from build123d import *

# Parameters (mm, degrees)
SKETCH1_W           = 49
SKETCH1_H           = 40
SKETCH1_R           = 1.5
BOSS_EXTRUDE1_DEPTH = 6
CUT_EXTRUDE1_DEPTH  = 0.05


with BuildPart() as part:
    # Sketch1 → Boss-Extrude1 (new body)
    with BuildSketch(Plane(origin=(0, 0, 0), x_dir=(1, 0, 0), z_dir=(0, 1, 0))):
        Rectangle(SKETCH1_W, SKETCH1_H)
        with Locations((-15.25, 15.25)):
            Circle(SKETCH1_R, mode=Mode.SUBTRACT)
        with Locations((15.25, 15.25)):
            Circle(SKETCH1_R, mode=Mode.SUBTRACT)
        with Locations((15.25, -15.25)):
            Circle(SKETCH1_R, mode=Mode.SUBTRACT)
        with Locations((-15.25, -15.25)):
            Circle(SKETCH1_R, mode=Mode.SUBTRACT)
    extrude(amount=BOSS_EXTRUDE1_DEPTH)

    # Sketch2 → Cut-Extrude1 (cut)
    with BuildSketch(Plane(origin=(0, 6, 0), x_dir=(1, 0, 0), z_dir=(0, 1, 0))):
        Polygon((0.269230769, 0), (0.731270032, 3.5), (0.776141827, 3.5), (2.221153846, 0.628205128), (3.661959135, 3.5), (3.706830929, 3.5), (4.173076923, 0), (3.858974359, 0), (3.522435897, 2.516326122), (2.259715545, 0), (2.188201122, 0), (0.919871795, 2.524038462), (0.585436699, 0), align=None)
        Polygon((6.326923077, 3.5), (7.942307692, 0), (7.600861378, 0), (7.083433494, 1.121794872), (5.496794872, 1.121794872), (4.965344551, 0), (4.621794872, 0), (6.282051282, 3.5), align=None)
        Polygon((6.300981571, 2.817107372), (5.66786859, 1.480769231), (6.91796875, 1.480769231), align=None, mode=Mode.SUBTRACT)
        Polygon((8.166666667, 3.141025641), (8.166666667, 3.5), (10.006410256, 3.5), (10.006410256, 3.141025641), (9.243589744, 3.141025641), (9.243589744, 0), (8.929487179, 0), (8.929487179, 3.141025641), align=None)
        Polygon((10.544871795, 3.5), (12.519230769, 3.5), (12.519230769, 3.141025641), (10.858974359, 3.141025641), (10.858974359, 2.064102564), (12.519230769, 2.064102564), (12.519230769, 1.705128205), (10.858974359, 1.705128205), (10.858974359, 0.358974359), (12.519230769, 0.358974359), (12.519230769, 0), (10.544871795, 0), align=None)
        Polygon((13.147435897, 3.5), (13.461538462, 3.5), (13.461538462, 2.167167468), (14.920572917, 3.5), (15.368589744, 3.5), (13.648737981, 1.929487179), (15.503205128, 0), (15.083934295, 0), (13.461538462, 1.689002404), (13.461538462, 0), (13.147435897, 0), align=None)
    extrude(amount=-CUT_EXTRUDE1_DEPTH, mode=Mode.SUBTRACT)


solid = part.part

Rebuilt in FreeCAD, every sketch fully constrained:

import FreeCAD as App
import Part
import Sketcher
Q = App.Units.Quantity


def add_polygon(sketch, points):
    """Adds a closed chain of lines whose ends are joined by coincident constraints."""
    first, n = sketch.GeometryCount, len(points)
    for a, b in zip(points, points[1:] + points[:1]):
        sketch.addGeometry(Part.LineSegment(App.Vector(*a, 0), App.Vector(*b, 0)), False)
    for i in range(n):
        sketch.addConstraint(Sketcher.Constraint("Coincident", first + i, 2, first + (i + 1) % n, 1))

doc = App.newDocument("Part")
body = doc.addObject("PartDesign::Body", "Body")

# Sketch on XZ plane
sketch1 = doc.addObject("Sketcher::SketchObject", "Sketch")
body.addObject(sketch1)
sketch1.AttachmentSupport = (doc.XZ_Plane, [""])
sketch1.MapMode = "FlatFace"
add_polygon(sketch1, [(-24.5, -20), (-24.5, 20), (24.5, 20), (24.5, -20)])  # lines 0-3
sketch1.addGeometry(Part.Circle(App.Vector(-15.25, 15.25, 0), App.Vector(0, 0, 1), 1.5), False)  # 4
sketch1.addGeometry(Part.Circle(App.Vector(15.25, 15.25, 0), App.Vector(0, 0, 1), 1.5), False)  # 5
sketch1.addGeometry(Part.Circle(App.Vector(-15.25, -15.25, 0), App.Vector(0, 0, 1), 1.5), False)  # 6
sketch1.addGeometry(Part.Circle(App.Vector(15.25, -15.25, 0), App.Vector(0, 0, 1), 1.5), False)  # 7
sketch1.addConstraint(Sketcher.Constraint("Vertical", 0))
sketch1.addConstraint(Sketcher.Constraint("Horizontal", 1))
sketch1.addConstraint(Sketcher.Constraint("Vertical", 2))
sketch1.addConstraint(Sketcher.Constraint("Horizontal", 3))
sketch1.addConstraint(Sketcher.Constraint("Equal", 4, 5))
sketch1.addConstraint(Sketcher.Constraint("Equal", 5, 6))
sketch1.addConstraint(Sketcher.Constraint("Equal", 6, 7))
sketch1.addConstraint(Sketcher.Constraint("Symmetric", 5, 3, 6, 3, -1, 1))
sketch1.addConstraint(Sketcher.Constraint("Symmetric", 4, 3, 7, 3, -1, 1))
sketch1.addConstraint(Sketcher.Constraint("Symmetric", 0, 2, 2, 2, -1, 1))
sketch1.addConstraint(Sketcher.Constraint("Symmetric", 4, 3, 5, 3, -2))
sketch1.addConstraint(Sketcher.Constraint("Diameter", 4, Q("3 mm")))
sketch1.addConstraint(Sketcher.Constraint("DistanceX", 1, 1, 1, 2, Q("49 mm")))
sketch1.addConstraint(Sketcher.Constraint("DistanceY", 0, 1, 0, 2, Q("40 mm")))
sketch1.addConstraint(Sketcher.Constraint("DistanceX", 4, 3, 5, 3, Q("30.5 mm")))
sketch1.addConstraint(Sketcher.Constraint("DistanceY", 6, 3, 4, 3, Q("30.5 mm")))
pad1 = doc.addObject("PartDesign::Pad", "Pad")
body.addObject(pad1)
pad1.Profile = sketch1
pad1.Length = 6
pad1.Reversed = True

# Sketch on XZ plane
sketch2 = doc.addObject("Sketcher::SketchObject", "Sketch001")
body.addObject(sketch2)
sketch2.AttachmentSupport = (doc.XZ_Plane, [""])
sketch2.MapMode = "FlatFace"
sketch2.AttachmentOffset = App.Placement(App.Vector(0, 0, -6), App.Rotation())
add_polygon(sketch2, [(0.73127, -3.5), (0.269231, 0), (0.585437, 0), (0.919872, -2.524038), (2.188201, 0), (2.259716, 0), (3.522436, -2.516326), (3.858974, 0), (4.173077, 0), (3.706831, -3.5), (3.661959, -3.5), (2.221154, -0.628205), (0.776142, -3.5)])  # lines 0-12
add_polygon(sketch2, [(7.942308, 0), (6.326923, -3.5), (6.282051, -3.5), (4.621795, 0), (4.965345, 0), (5.496795, -1.121795), (7.083433, -1.121795), (7.600861, 0)])  # lines 13-20
add_polygon(sketch2, [(6.300982, -2.817107), (6.917969, -1.480769), (5.667869, -1.480769)])  # lines 21-23
add_polygon(sketch2, [(8.166667, -3.5), (8.166667, -3.141026), (8.929487, -3.141026), (8.929487, 0), (9.24359, 0), (9.24359, -3.141026), (10.00641, -3.141026), (10.00641, -3.5)])  # lines 24-31
add_polygon(sketch2, [(12.519231, -3.5), (10.544872, -3.5), (10.544872, 0), (12.519231, 0), (12.519231, -0.358974), (10.858974, -0.358974), (10.858974, -1.705128), (12.519231, -1.705128), (12.519231, -2.064103), (10.858974, -2.064103), (10.858974, -3.141026), (12.519231, -3.141026)])  # lines 32-43
add_polygon(sketch2, [(13.461538, -3.5), (13.147436, -3.5), (13.147436, 0), (13.461538, 0), (13.461538, -1.689002), (15.083934, 0), (15.503205, 0), (13.648738, -1.929487), (15.36859, -3.5), (14.920573, -3.5), (13.461538, -2.167167)])  # lines 44-54
sketch2.addConstraint(Sketcher.Constraint("Horizontal", 1))
sketch2.addConstraint(Sketcher.Constraint("Horizontal", 4))
sketch2.addConstraint(Sketcher.Constraint("Horizontal", 7))
sketch2.addConstraint(Sketcher.Constraint("Horizontal", 9))
sketch2.addConstraint(Sketcher.Constraint("Horizontal", 12))
sketch2.addConstraint(Sketcher.Constraint("Horizontal", 14))
sketch2.addConstraint(Sketcher.Constraint("Horizontal", 16))
sketch2.addConstraint(Sketcher.Constraint("Horizontal", 18))
sketch2.addConstraint(Sketcher.Constraint("Horizontal", 20))
sketch2.addConstraint(Sketcher.Constraint("Horizontal", 22))
sketch2.addConstraint(Sketcher.Constraint("Vertical", 24))
sketch2.addConstraint(Sketcher.Constraint("Horizontal", 25))
sketch2.addConstraint(Sketcher.Constraint("Vertical", 26))
sketch2.addConstraint(Sketcher.Constraint("Horizontal", 27))
sketch2.addConstraint(Sketcher.Constraint("Vertical", 28))
sketch2.addConstraint(Sketcher.Constraint("Horizontal", 29))
sketch2.addConstraint(Sketcher.Constraint("Vertical", 30))
sketch2.addConstraint(Sketcher.Constraint("Horizontal", 31))
sketch2.addConstraint(Sketcher.Constraint("Horizontal", 32))
sketch2.addConstraint(Sketcher.Constraint("Vertical", 33))
sketch2.addConstraint(Sketcher.Constraint("Horizontal", 34))
sketch2.addConstraint(Sketcher.Constraint("Vertical", 35))
sketch2.addConstraint(Sketcher.Constraint("Horizontal", 36))
sketch2.addConstraint(Sketcher.Constraint("Vertical", 37))
sketch2.addConstraint(Sketcher.Constraint("Horizontal", 38))
sketch2.addConstraint(Sketcher.Constraint("Vertical", 39))
sketch2.addConstraint(Sketcher.Constraint("Horizontal", 40))
sketch2.addConstraint(Sketcher.Constraint("Vertical", 41))
sketch2.addConstraint(Sketcher.Constraint("Horizontal", 42))
sketch2.addConstraint(Sketcher.Constraint("Vertical", 43))
sketch2.addConstraint(Sketcher.Constraint("Horizontal", 44))
sketch2.addConstraint(Sketcher.Constraint("Vertical", 45))
sketch2.addConstraint(Sketcher.Constraint("Horizontal", 46))
sketch2.addConstraint(Sketcher.Constraint("Vertical", 47))
sketch2.addConstraint(Sketcher.Constraint("Horizontal", 49))
sketch2.addConstraint(Sketcher.Constraint("Horizontal", 52))
sketch2.addConstraint(Sketcher.Constraint("Vertical", 54))
sketch2.addConstraint(Sketcher.Constraint("PointOnObject", 0, 2, -1))
sketch2.addConstraint(Sketcher.Constraint("PointOnObject", 3, 2, -1))
sketch2.addConstraint(Sketcher.Constraint("PointOnObject", 6, 2, -1))
sketch2.addConstraint(Sketcher.Constraint("PointOnObject", 15, 2, -1))
sketch2.addConstraint(Sketcher.Constraint("PointOnObject", 19, 2, -1))
sketch2.addConstraint(Sketcher.Constraint("PointOnObject", 26, 2, -1))
sketch2.addConstraint(Sketcher.Constraint("PointOnObject", 33, 2, -1))
sketch2.addConstraint(Sketcher.Constraint("PointOnObject", 45, 2, -1))
sketch2.addConstraint(Sketcher.Constraint("PointOnObject", 48, 2, -1))
sketch2.addConstraint(Sketcher.Constraint("Horizontal", 9, 2, 11, 2))
sketch2.addConstraint(Sketcher.Constraint("Horizontal", 12, 2, 13, 2))
sketch2.addConstraint(Sketcher.Constraint("Horizontal", 25, 2, 28, 2))
sketch2.addConstraint(Sketcher.Constraint("Horizontal", 14, 2, 30, 2))
sketch2.addConstraint(Sketcher.Constraint("Horizontal", 31, 2, 32, 2))
sketch2.addConstraint(Sketcher.Constraint("Horizontal", 29, 2, 41, 2))
sketch2.addConstraint(Sketcher.Constraint("Horizontal", 43, 2, 44, 2))
sketch2.addConstraint(Sketcher.Constraint("Horizontal", 44, 2, 51, 2))
sketch2.addConstraint(Sketcher.Constraint("Vertical", 35, 2, 38, 2))
sketch2.addConstraint(Sketcher.Constraint("Vertical", 37, 2, 40, 2))
sketch2.addConstraint(Sketcher.Constraint("Vertical", 39, 2, 42, 2))
sketch2.addConstraint(Sketcher.Constraint("Vertical", 47, 2, 53, 2))
sketch2.addConstraint(Sketcher.Constraint("Equal", 9, 12))
sketch2.addConstraint(Sketcher.Constraint("Equal", 12, 14))
sketch2.addConstraint(Sketcher.Constraint("Equal", 7, 27))
sketch2.addConstraint(Sketcher.Constraint("Equal", 25, 29))
sketch2.addConstraint(Sketcher.Constraint("Equal", 27, 44))
sketch2.addConstraint(Sketcher.Constraint("Equal", 30, 35))
sketch2.addConstraint(Sketcher.Constraint("Equal", 35, 39))
sketch2.addConstraint(Sketcher.Constraint("DistanceY", 33, 1, 33, 2, Q("3.5 mm")))
sketch2.addConstraint(Sketcher.Constraint("DistanceX", 22, 2, 22, 1, Q("1.2501 mm")))
sketch2.addConstraint(Sketcher.Constraint("DistanceX", 1, 2, 5, 2, Q("2.936999 mm")))
sketch2.addConstraint(Sketcher.Constraint("DistanceX", 15, 2, 17, 2, Q("0.875 mm")))
sketch2.addConstraint(Sketcher.Constraint("Distance", 2, Q("2.546098 mm")))
sketch2.addConstraint(Sketcher.Constraint("DistanceX", 9, 2, 9, 1, Q("0.044872 mm")))
sketch2.addConstraint(Sketcher.Constraint("DistanceX", 16, 1, 16, 2, Q("0.34355 mm")))
sketch2.addConstraint(Sketcher.Constraint("DistanceX", 18, 1, 18, 2, Q("1.586639 mm")))
sketch2.addConstraint(Sketcher.Constraint("DistanceX", 25, 1, 25, 2, Q("0.762821 mm")))
sketch2.addConstraint(Sketcher.Constraint("DistanceX", 32, 2, 32, 1, Q("1.974359 mm")))
sketch2.addConstraint(Sketcher.Constraint("DistanceX", 49, 1, 49, 2, Q("0.419271 mm")))
sketch2.addConstraint(Sketcher.Constraint("DistanceX", -1, 1, 3, 2, Q("2.188201 mm")))
sketch2.addConstraint(Sketcher.Constraint("DistanceX", 12, 2, 2, 2, Q("0.188602 mm")))
sketch2.addConstraint(Sketcher.Constraint("DistanceY", 39, 2, 47, 2, Q("0.3751 mm")))
sketch2.addConstraint(Sketcher.Constraint("DistanceX", 45, 2, 48, 2, Q("1.936498 mm")))
sketch2.addConstraint(Sketcher.Constraint("DistanceX", 47, 2, 50, 2, Q("0.1872 mm")))
sketch2.addConstraint(Sketcher.Constraint("Distance", 3, Q("2.824788 mm")))
sketch2.addConstraint(Sketcher.Constraint("Distance", 5, Q("2.815379 mm")))
sketch2.addConstraint(Sketcher.Constraint("Distance", 6, Q("2.538731 mm")))
sketch2.addConstraint(Sketcher.Constraint("Distance", 8, Q("3.530918 mm")))
sketch2.addConstraint(Sketcher.Constraint("Distance", 11, Q("3.214851 mm")))
sketch2.addConstraint(Sketcher.Constraint("DistanceX", 1, 1, 1, 2, Q("0.316206 mm")))
sketch2.addConstraint(Sketcher.Constraint("DistanceX", 4, 1, 4, 2, Q("0.071514 mm")))
sketch2.addConstraint(Sketcher.Constraint("DistanceX", 7, 1, 7, 2, Q("0.314103 mm")))
sketch2.addConstraint(Sketcher.Constraint("DistanceX", 20, 1, 20, 2, Q("0.341446 mm")))
sketch2.addConstraint(Sketcher.Constraint("DistanceX", 36, 2, 36, 1, Q("1.660256 mm")))
sketch2.addConstraint(Sketcher.Constraint("DistanceX", 52, 2, 52, 1, Q("0.448017 mm")))
sketch2.addConstraint(Sketcher.Constraint("DistanceY", 24, 1, 24, 2, Q("0.358974 mm")))
sketch2.addConstraint(Sketcher.Constraint("DistanceY", 37, 2, 37, 1, Q("1.346154 mm")))
sketch2.addConstraint(Sketcher.Constraint("DistanceY", 54, 2, 54, 1, Q("1.332833 mm")))
sketch2.addConstraint(Sketcher.Constraint("DistanceX", -1, 1, 0, 2, Q("0.269231 mm")))
sketch2.addConstraint(Sketcher.Constraint("DistanceX", -1, 1, 14, 2, Q("6.282051 mm")))
sketch2.addConstraint(Sketcher.Constraint("DistanceX", -1, 1, 19, 2, Q("7.600861 mm")))
sketch2.addConstraint(Sketcher.Constraint("DistanceX", -1, 1, 21, 2, Q("6.917969 mm")))
sketch2.addConstraint(Sketcher.Constraint("DistanceY", 21, 2, -1, 1, Q("1.480769 mm")))
sketch2.addConstraint(Sketcher.Constraint("DistanceX", -1, 1, 23, 2, Q("6.300982 mm")))
sketch2.addConstraint(Sketcher.Constraint("DistanceX", -1, 1, 27, 2, Q("9.24359 mm")))
sketch2.addConstraint(Sketcher.Constraint("DistanceX", -1, 1, 32, 2, Q("10.544872 mm")))
sketch2.addConstraint(Sketcher.Constraint("DistanceX", -1, 1, 46, 2, Q("13.461538 mm")))
sketch2.addConstraint(Sketcher.Constraint("DistanceX", -1, 1, 51, 2, Q("15.36859 mm")))
sketch2.addConstraint(Sketcher.Constraint("DistanceX", 10, 2, 4, 2, Q("0.038562 mm")))
sketch2.addConstraint(Sketcher.Constraint("DistanceX", 6, 2, 15, 2, Q("0.762821 mm")))
sketch2.addConstraint(Sketcher.Constraint("DistanceY", 5, 2, 17, 2, Q("1.394531 mm")))
sketch2.addConstraint(Sketcher.Constraint("DistanceY", 23, 2, 21, 2, Q("1.336338 mm")))
sketch2.addConstraint(Sketcher.Constraint("DistanceY", 50, 2, 38, 2, Q("0.224359 mm")))
pocket1 = doc.addObject("PartDesign::Pocket", "Pocket")
body.addObject(pocket1)
pocket1.Profile = sketch2
pocket1.Length = 0.05
pocket1.Reversed = True

doc.recompute()
